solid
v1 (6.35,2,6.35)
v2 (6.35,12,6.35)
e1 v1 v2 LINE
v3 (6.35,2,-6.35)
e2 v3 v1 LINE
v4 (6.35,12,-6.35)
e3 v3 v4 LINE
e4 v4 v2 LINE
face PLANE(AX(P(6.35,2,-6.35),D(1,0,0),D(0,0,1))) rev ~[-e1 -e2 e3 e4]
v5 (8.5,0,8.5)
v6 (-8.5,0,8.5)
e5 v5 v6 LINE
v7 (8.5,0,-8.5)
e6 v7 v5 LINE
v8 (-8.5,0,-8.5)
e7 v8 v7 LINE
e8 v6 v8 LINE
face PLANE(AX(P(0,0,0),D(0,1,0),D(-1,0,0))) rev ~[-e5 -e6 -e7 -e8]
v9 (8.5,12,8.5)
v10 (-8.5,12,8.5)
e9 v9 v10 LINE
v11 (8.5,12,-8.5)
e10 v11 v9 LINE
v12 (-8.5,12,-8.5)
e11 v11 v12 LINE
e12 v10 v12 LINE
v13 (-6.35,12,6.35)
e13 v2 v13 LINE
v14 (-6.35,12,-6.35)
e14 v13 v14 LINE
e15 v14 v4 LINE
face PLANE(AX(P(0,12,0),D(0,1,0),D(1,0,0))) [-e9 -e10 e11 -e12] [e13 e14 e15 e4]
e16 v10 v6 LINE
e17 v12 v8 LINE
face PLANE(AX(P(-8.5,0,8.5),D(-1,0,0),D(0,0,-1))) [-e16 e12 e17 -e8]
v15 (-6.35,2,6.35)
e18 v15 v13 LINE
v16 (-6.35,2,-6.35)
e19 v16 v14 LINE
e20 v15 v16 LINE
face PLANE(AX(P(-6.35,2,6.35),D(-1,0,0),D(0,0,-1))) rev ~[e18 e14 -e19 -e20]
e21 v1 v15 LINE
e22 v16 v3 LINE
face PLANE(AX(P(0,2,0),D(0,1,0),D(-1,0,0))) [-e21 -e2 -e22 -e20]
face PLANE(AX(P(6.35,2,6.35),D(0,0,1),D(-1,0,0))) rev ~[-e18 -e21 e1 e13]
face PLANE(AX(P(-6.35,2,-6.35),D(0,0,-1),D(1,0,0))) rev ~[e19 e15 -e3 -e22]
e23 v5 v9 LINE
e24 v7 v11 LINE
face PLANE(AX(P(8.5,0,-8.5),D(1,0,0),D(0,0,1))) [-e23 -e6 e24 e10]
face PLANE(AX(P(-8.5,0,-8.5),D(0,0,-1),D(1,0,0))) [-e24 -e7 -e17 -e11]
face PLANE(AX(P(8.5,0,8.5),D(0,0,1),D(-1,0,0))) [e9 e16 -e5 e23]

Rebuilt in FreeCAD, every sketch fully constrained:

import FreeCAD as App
import Part
import Sketcher


def add_polygon(sketch, points):
    """Adds a closed chain of lines whose ends are joined by coincident constraints."""
    first, n = sketch.GeometryCount, len(points)
    for a, b in zip(points, points[1:] + points[:1]):
        sketch.addGeometry(Part.LineSegment(App.Vector(*a, 0), App.Vector(*b, 0)), False)
    for i in range(n):
        sketch.addConstraint(Sketcher.Constraint("Coincident", first + i, 2, first + (i + 1) % n, 1))

doc = App.newDocument("Part")
body = doc.addObject("PartDesign::Body", "Body")

sketch1 = body.newObject("Sketcher::SketchObject", "Sketch")
sketch1.AttachmentSupport = (doc.getObject("XZ_Plane"), [""])
sketch1.MapMode = "FlatFace"
add_polygon(sketch1, [(-8, 8), (8, 8), (8, -8), (-8, -8)])
sketch1.addConstraint([
    Sketcher.Constraint("Horizontal", 0),
    Sketcher.Constraint("Vertical", 1),
    Sketcher.Constraint("Horizontal", 2),
    Sketcher.Constraint("Vertical", 3),
    Sketcher.Constraint("Symmetric", 0, 2, 2, 2, -1, 1),
    Sketcher.Constraint("Equal", 2, 1),
    Sketcher.Constraint("DistanceX", 0, 1, 0, 2, 17.0),
])
pad1 = body.newObject("PartDesign::Pad", "Pad")
pad1.Profile = sketch1
pad1.Length = 2
pad1.Reversed = True

sketch2 = body.newObject("Sketcher::SketchObject", "Sketch001")
sketch2.AttachmentSupport = (doc.getObject("XZ_Plane"), [""])
sketch2.MapMode = "FlatFace"
sketch2.AttachmentOffset = App.Placement(App.Vector(0, 0, -2), App.Rotation())
add_polygon(sketch2, [(8, 8), (8, -8), (-8, -8), (-8, 8)])
add_polygon(sketch2, [(6, -6), (6, 6), (-6, 6), (-6, -6)])
sketch2.addConstraint([
    Sketcher.Constraint("Vertical", 0),
    Sketcher.Constraint("Horizontal", 1),
    Sketcher.Constraint("Vertical", 2),
    Sketcher.Constraint("Horizontal", 3),
    Sketcher.Constraint("Vertical", 4),
    Sketcher.Constraint("Horizontal", 5),
    Sketcher.Constraint("Vertical", 6),
    Sketcher.Constraint("Horizontal", 7),
    Sketcher.Constraint("Symmetric", 0, 2, 2, 2, -1, 1),
    Sketcher.Constraint("Symmetric", 4, 2, 6, 2, -1, 1),
    Sketcher.Constraint("Equal", 3, 0),
    Sketcher.Constraint("Equal", 7, 4),
    Sketcher.Constraint("DistanceX", 5, 2, 5, 1, 12.7),
    Sketcher.Constraint("DistanceX", 1, 2, 1, 1, 17.0),
])
pad2 = body.newObject("PartDesign::Pad", "Pad001")
pad2.Profile = sketch2
pad2.Length = 10
pad2.Reversed = True

doc.recompute()
